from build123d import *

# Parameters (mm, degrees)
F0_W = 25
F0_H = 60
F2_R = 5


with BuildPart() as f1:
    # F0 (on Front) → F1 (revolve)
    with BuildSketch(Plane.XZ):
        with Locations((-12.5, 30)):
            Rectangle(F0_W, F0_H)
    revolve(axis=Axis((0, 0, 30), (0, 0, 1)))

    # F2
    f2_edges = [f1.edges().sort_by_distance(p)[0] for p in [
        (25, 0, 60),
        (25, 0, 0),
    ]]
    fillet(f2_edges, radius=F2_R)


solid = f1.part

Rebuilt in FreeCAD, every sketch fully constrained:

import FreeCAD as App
import Part
import Sketcher

V = App.Vector


def edges_at(feature, points):
    """Names of the edges that pass closest to the given points."""
    edges = feature.Shape.Edges
    near = lambda p: min(range(len(edges)), key=lambda i: edges[i].distToShape(Part.Vertex(*p))[0])
    return sorted({f"Edge{near(p) + 1}" for p in points})

doc = App.newDocument("Part")
body = doc.addObject("PartDesign::Body", "Body")

# Sketch on XZ plane
sketch1 = doc.addObject("Sketcher::SketchObject", "Sketch")
body.addObject(sketch1)
sketch1.AttachmentSupport = (doc.XZ_Plane, [""])
sketch1.MapMode = "FlatFace"
sketch1.addGeometry([
    Part.LineSegment(V(-25, 60, 0), V(-25, 0, 0)),
    Part.LineSegment(V(-25, 0, 0), V(0, 0, 0)),
    Part.LineSegment(V(0, 0, 0), V(0, 60, 0)),
    Part.LineSegment(V(0, 60, 0), V(-25, 60, 0)),
], False)
sketch1.addConstraint([
    Sketcher.Constraint("Coincident", 0, 2, 1, 1),
    Sketcher.Constraint("Coincident", 1, 2, 2, 1),
    Sketcher.Constraint("Coincident", 2, 2, 3, 1),
    Sketcher.Constraint("Coincident", 3, 2, 0, 1),
    Sketcher.Constraint("Vertical", 0),
    Sketcher.Constraint("Horizontal", 1),
    Sketcher.Constraint("Vertical", 2),
    Sketcher.Constraint("Horizontal", 3),
    Sketcher.Constraint("Coincident", 1, 2, -1, 1),
    Sketcher.Constraint("DistanceX", 1, 1, 1, 2, 25.0),
    Sketcher.Constraint("DistanceY", 0, 2, 0, 1, 60.0),
])
revolution = doc.addObject("PartDesign::Revolution", "Revolution")
body.addObject(revolution)
revolution.Profile = sketch1
revolution.ReferenceAxis = (sketch1, ["V_Axis"])
revolution.Angle = 360
doc.recompute()

fillet = doc.addObject("PartDesign::Fillet", "Fillet")
body.addObject(fillet)
fillet.Base = (revolution, edges_at(revolution, [(25, 0, 60), (25, 0, 0)]))
fillet.Radius = 5

doc.recompute()
